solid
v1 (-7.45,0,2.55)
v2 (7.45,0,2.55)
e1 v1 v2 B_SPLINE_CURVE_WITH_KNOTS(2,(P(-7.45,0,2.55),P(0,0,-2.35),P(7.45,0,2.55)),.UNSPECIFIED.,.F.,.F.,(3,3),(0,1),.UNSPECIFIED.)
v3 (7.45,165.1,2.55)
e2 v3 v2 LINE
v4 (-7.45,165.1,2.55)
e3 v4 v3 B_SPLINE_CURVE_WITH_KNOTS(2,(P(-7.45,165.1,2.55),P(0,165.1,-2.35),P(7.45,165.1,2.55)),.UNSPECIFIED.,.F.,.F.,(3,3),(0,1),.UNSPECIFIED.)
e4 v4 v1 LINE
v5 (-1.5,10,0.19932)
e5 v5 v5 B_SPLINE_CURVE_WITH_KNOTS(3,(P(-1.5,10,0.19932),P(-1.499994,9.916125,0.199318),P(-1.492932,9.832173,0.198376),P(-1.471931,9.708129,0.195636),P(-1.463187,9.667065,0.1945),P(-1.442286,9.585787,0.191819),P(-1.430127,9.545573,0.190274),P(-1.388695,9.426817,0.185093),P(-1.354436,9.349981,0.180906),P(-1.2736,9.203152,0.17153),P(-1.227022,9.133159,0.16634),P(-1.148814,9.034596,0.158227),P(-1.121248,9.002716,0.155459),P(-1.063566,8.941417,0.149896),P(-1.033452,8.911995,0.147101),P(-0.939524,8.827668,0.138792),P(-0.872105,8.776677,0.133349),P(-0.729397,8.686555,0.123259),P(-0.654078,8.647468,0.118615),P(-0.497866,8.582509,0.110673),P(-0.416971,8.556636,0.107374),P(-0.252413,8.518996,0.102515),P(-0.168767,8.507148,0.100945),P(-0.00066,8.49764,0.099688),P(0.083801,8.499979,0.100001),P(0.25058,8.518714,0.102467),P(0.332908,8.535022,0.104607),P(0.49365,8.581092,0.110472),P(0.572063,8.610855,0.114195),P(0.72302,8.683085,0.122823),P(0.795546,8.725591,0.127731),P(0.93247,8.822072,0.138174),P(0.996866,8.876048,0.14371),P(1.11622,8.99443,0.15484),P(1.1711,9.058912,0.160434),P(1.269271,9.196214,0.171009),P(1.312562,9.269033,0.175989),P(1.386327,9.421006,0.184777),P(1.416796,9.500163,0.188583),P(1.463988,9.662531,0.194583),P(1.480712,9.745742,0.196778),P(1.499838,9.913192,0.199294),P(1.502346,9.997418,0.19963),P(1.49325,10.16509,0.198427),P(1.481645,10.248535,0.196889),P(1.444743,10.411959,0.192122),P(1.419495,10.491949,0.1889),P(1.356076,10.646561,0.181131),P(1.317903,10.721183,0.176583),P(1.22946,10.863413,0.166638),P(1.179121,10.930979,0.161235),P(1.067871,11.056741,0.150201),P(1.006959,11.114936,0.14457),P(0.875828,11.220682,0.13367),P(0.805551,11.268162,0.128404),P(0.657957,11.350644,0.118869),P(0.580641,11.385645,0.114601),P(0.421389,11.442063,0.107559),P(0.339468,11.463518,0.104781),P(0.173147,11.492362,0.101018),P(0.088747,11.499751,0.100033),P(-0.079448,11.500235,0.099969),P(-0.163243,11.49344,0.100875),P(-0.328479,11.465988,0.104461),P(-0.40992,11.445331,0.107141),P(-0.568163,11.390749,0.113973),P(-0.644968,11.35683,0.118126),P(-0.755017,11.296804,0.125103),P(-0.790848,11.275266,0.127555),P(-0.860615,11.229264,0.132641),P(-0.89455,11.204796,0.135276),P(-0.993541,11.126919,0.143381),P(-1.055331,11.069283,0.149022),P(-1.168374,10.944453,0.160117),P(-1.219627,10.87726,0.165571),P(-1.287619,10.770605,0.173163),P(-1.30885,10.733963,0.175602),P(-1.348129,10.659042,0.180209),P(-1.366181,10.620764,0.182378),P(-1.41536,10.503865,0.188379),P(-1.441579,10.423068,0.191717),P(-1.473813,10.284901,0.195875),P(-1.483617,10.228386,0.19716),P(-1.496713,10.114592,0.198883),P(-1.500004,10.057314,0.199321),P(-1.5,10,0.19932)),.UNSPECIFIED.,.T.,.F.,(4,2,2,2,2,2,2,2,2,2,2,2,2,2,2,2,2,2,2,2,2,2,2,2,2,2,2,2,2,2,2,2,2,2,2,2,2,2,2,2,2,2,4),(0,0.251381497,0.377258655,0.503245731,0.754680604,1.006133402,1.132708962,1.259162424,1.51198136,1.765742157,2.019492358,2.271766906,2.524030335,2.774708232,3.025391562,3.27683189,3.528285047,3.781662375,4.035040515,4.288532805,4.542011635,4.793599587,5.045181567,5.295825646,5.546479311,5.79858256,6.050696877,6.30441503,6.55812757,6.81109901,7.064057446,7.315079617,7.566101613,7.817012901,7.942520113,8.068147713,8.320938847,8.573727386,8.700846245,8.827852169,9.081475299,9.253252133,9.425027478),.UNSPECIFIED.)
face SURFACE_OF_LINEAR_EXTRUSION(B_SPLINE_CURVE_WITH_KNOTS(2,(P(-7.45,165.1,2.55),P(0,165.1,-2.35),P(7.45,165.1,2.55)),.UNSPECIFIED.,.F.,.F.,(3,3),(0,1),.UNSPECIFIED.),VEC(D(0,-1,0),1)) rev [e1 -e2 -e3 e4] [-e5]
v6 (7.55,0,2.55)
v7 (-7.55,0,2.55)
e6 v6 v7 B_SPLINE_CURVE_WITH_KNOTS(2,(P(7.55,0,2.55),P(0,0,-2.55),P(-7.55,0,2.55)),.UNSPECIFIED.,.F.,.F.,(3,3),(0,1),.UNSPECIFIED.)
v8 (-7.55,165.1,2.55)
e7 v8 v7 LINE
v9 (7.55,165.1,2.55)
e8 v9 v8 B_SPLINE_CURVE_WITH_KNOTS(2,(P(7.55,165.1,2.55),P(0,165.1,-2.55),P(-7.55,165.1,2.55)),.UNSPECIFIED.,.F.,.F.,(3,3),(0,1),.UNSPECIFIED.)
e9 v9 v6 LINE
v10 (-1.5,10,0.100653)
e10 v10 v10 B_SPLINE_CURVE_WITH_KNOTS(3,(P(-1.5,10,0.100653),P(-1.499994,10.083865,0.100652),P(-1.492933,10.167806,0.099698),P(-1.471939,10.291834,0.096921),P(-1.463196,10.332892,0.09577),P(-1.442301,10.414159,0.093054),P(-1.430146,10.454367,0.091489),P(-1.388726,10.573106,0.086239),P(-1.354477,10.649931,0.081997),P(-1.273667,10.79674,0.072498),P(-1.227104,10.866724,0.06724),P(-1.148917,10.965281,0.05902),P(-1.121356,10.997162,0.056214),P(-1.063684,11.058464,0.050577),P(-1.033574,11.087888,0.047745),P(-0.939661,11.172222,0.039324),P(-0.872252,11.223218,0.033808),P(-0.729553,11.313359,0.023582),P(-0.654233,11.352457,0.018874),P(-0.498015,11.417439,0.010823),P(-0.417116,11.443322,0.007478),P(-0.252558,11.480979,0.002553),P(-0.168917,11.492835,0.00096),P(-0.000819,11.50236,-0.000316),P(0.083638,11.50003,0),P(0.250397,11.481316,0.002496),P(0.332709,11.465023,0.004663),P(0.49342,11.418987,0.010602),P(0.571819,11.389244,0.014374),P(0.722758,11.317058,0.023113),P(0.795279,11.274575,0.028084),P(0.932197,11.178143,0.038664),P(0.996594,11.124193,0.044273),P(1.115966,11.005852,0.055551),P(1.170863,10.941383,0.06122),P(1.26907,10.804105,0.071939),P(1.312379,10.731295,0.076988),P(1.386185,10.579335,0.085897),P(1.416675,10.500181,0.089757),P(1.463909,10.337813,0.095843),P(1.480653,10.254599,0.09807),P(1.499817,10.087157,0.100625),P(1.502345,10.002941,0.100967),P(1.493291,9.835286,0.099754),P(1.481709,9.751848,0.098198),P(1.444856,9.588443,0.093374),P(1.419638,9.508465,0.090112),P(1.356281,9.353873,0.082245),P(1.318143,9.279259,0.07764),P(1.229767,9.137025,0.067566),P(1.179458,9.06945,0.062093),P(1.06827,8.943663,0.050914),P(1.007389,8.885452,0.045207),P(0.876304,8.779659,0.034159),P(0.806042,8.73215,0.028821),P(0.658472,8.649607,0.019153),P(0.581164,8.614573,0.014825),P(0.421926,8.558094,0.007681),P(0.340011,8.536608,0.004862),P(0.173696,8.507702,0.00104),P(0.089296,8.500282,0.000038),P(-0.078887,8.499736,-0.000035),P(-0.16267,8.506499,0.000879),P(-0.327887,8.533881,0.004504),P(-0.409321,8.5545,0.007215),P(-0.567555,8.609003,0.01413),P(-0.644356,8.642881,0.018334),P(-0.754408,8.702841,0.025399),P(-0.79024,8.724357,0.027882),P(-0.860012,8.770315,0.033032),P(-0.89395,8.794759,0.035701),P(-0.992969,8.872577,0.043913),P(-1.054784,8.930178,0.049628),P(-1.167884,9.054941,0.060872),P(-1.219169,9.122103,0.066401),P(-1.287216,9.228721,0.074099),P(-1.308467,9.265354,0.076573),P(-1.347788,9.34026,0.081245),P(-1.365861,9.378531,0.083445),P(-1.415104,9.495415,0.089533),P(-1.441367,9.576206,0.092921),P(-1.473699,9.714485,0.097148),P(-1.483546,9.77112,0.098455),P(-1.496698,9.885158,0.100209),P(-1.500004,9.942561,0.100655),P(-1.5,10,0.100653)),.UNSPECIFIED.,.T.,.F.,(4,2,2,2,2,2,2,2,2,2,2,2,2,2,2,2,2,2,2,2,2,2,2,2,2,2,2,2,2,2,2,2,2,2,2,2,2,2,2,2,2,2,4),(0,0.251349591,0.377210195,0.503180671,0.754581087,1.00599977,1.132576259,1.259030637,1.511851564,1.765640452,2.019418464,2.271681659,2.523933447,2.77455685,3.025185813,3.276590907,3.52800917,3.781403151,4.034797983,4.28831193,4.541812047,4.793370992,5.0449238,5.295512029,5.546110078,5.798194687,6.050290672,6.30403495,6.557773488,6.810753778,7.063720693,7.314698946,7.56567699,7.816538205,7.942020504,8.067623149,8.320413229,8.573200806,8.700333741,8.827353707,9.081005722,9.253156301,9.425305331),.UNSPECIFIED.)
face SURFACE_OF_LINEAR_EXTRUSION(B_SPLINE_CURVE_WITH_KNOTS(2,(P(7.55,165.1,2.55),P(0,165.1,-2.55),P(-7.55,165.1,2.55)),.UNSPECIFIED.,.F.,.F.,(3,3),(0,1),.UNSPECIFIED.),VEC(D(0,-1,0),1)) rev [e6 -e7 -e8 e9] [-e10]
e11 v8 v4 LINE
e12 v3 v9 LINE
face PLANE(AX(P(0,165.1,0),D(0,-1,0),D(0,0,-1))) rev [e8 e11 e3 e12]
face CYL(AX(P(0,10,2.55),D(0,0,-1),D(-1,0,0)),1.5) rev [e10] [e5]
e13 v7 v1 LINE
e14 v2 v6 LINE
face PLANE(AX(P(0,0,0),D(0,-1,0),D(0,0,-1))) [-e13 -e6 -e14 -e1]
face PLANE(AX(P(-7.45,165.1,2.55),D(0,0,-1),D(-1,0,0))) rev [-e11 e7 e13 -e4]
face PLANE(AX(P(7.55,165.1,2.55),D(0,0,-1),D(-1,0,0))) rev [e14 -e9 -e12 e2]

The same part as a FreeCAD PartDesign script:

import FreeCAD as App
import Part
import Sketcher

V = App.Vector

doc = App.newDocument("Part")
body = doc.addObject("PartDesign::Body", "Body")

# Sketch on XZ plane
sketch1 = body.newObject("Sketcher::SketchObject", "Sketch")
sketch1.AttachmentSupport = (doc.getObject("XZ_Plane"), [""])
sketch1.MapMode = "FlatFace"
sketch1.addGeometry([
    Part.LineSegment(V(7.45, 2.55, 0), V(7.55, 2.55, 0)),
    Part.BSplineCurve([V(7.55, 2.55, 0), V(0, -2.55, 0), V(-7.55, 2.55, 0)], [3, 3], [0, 1], False, 2, [1, 1, 1], False),
    Part.LineSegment(V(-7.55, 2.55, 0), V(-7.45, 2.55, 0)),
    Part.BSplineCurve([V(-7.45, 2.55, 0), V(0, -2.35, 0), V(7.45, 2.55, 0)], [3, 3], [0, 1], False, 2, [1, 1, 1], False),
], False)
sketch1.addConstraint([
    Sketcher.Constraint("Block", 1),
    Sketcher.Constraint("Block", 3),
    Sketcher.Constraint("Coincident", 0, 2, 1, 1),
    Sketcher.Constraint("Coincident", 1, 2, 2, 1),
    Sketcher.Constraint("Coincident", 2, 2, 3, 1),
    Sketcher.Constraint("Coincident", 3, 2, 0, 1),
])
pad1 = body.newObject("PartDesign::Pad", "Pad")
pad1.Profile = sketch1
pad1.Length = 165.1
pad1.Reversed = True

# Sketch on XY plane
sketch2 = body.newObject("Sketcher::SketchObject", "Sketch001")
sketch2.AttachmentSupport = (doc.getObject("XY_Plane"), [""])
sketch2.MapMode = "FlatFace"
sketch2.addGeometry(Part.Circle(V(0, 10, 0), V(0, 0, 1), 1.5), False)
sketch2.addConstraint([
    Sketcher.Constraint("PointOnObject", 0, 3, -2),
    Sketcher.Constraint("Diameter", 0, 3.0),
    Sketcher.Constraint("DistanceY", -1, 1, 0, 3, 10.0),
])
pocket1 = body.newObject("PartDesign::Pocket", "Pocket")
pocket1.Profile = sketch2
pocket1.Type = "ThroughAll"
pocket1.Reversed = True

doc.recompute()
